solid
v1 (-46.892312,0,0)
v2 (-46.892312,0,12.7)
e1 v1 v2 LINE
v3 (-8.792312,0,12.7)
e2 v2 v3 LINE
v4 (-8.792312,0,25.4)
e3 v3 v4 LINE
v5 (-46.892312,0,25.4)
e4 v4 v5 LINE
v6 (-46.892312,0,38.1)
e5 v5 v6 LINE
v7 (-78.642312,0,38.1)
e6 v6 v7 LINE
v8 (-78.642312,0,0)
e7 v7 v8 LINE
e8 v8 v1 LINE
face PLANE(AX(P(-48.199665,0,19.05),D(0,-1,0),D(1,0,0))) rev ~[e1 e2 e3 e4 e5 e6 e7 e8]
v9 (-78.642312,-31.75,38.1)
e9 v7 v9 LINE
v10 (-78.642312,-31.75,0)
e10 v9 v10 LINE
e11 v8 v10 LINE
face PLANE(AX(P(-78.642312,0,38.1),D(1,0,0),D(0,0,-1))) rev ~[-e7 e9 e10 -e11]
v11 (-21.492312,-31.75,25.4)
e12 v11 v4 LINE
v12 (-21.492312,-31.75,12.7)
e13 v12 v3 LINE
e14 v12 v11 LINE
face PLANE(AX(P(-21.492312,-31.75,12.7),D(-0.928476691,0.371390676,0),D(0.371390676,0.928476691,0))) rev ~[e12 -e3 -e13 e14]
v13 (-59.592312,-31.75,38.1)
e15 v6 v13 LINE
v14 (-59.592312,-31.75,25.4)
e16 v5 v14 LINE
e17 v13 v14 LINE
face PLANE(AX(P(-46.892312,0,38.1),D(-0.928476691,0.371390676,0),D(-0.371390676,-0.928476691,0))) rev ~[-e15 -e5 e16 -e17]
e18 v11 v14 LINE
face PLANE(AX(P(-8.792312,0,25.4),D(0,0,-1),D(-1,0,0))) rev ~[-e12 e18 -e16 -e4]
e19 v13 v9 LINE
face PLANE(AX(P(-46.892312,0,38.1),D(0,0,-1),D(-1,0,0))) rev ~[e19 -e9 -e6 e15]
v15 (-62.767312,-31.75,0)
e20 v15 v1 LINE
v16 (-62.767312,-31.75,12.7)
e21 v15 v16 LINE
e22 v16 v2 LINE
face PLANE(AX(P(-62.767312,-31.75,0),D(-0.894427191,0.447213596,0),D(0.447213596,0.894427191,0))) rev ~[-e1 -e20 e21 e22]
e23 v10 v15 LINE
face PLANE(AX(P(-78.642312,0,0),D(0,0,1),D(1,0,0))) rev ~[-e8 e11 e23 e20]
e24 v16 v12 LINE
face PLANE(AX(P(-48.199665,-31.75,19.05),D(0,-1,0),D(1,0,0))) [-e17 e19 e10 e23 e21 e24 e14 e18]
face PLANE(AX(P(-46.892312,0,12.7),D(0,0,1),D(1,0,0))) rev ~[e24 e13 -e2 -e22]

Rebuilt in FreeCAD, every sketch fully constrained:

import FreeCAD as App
import Part
import Sketcher
Q = App.Units.Quantity


def add_polygon(sketch, points):
    """Adds a closed chain of lines whose ends are joined by coincident constraints."""
    first, n = sketch.GeometryCount, len(points)
    for a, b in zip(points, points[1:] + points[:1]):
        sketch.addGeometry(Part.LineSegment(App.Vector(*a, 0), App.Vector(*b, 0)), False)
    for i in range(n):
        sketch.addConstraint(Sketcher.Constraint("Coincident", first + i, 2, first + (i + 1) % n, 1))

doc = App.newDocument("Part")
body = doc.addObject("PartDesign::Body", "Body")

sketch1 = body.newObject("Sketcher::SketchObject", "Sketch")
sketch1.AttachmentSupport = (doc.getObject("XZ_Plane"), [""])
sketch1.MapMode = "FlatFace"
add_polygon(sketch1, [(-79, 38), (-79, 0), (-47, 0), (-47, 13), (-9, 13), (-9, 25), (-47, 25), (-47, 38)])
sketch1.addConstraint([
    Sketcher.Constraint("Vertical", 0),
    Sketcher.Constraint("Horizontal", 1),
    Sketcher.Constraint("Vertical", 2),
    Sketcher.Constraint("Horizontal", 3),
    Sketcher.Constraint("Vertical", 4),
    Sketcher.Constraint("Horizontal", 5),
    Sketcher.Constraint("Vertical", 6),
    Sketcher.Constraint("Horizontal", 7),
    Sketcher.Constraint("PointOnObject", 0, 2, -1),
    Sketcher.Constraint("Vertical", 2, 2, 5, 2),
    Sketcher.Constraint("Equal", 5, 0),
    Sketcher.Constraint("Equal", 2, 4),
    Sketcher.Constraint("Equal", 4, 6),
    Sketcher.Constraint("DistanceX", 3, 1, 3, 2, Q("1.5 in")),
    Sketcher.Constraint("DistanceX", 1, 1, 1, 2, Q("1.25 in")),
    Sketcher.Constraint("DistanceX", 1, 2, -1, 1, Q("46.892312 mm")),
])
pad1 = body.newObject("PartDesign::Pad", "Pad")
pad1.Profile = sketch1
pad1.Length = Q("1.25 in")

sketch2 = body.newObject("Sketcher::SketchObject", "Sketch001")
sketch2.AttachmentSupport = (doc.getObject("XY_Plane"), [""])
sketch2.MapMode = "FlatFace"
add_polygon(sketch2, [(-47, -32), (-63, -32), (-47, 0)])
sketch2.addConstraint([
    Sketcher.Constraint("Horizontal", 0),
    Sketcher.Constraint("Vertical", 2),
    Sketcher.Constraint("PointOnObject", 1, 2, -1),
    Sketcher.Constraint("DistanceY", 2, 2, 2, 1, Q("1.25 in")),
    Sketcher.Constraint("DistanceX", 0, 2, 0, 1, Q("0.625 in")),
    Sketcher.Constraint("DistanceX", 0, 2, -1, 1, Q("62.767312 mm")),
])
pocket1 = body.newObject("PartDesign::Pocket", "Pocket")
pocket1.Profile = sketch2
pocket1.Length = Q("0.5 in")
pocket1.Reversed = True

sketch3 = body.newObject("Sketcher::SketchObject", "Sketch002")
sketch3.AttachmentSupport = (doc.getObject("XY_Plane"), [""])
sketch3.MapMode = "FlatFace"
sketch3.AttachmentOffset = App.Placement(App.Vector(0, 0, 1.5 * 25.4), App.Rotation())
add_polygon(sketch3, [(-47, 0), (-60, -32), (-47, -32)])
sketch3.addConstraint([
    Sketcher.Constraint("Horizontal", 1),
    Sketcher.Constraint("Vertical", 2),
    Sketcher.Constraint("PointOnObject", 2, 2, -1),
    Sketcher.Constraint("DistanceX", 1, 1, 1, 2, Q("0.5 in")),
    Sketcher.Constraint("DistanceY", 2, 1, 2, 2, Q("1.25 in")),
    Sketcher.Constraint("DistanceX", 1, 2, -1, 1, Q("46.892312 mm")),
])
pocket2 = body.newObject("PartDesign::Pocket", "Pocket001")
pocket2.Profile = sketch3
pocket2.Length = Q("0.5 in")

sketch4 = body.newObject("Sketcher::SketchObject", "Sketch003")
sketch4.AttachmentSupport = (doc.getObject("XY_Plane"), [""])
sketch4.MapMode = "FlatFace"
sketch4.AttachmentOffset = App.Placement(App.Vector(0, 0, 0.5 * 25.4), App.Rotation())
add_polygon(sketch4, [(-9, -32), (-21, -32), (-9, 0)])
sketch4.addConstraint([
    Sketcher.Constraint("Horizontal", 0),
    Sketcher.Constraint("Vertical", 2),
    Sketcher.Constraint("PointOnObject", 1, 2, -1),
    Sketcher.Constraint("DistanceX", 0, 2, 0, 1, Q("0.5 in")),
    Sketcher.Constraint("DistanceY", 2, 2, 2, 1, Q("1.25 in")),
    Sketcher.Constraint("DistanceX", 0, 2, -1, 1, Q("21.492312 mm")),
])
pocket3 = body.newObject("PartDesign::Pocket", "Pocket002")
pocket3.Profile = sketch4
pocket3.Length = Q("0.5 in")
pocket3.Reversed = True

doc.recompute()
